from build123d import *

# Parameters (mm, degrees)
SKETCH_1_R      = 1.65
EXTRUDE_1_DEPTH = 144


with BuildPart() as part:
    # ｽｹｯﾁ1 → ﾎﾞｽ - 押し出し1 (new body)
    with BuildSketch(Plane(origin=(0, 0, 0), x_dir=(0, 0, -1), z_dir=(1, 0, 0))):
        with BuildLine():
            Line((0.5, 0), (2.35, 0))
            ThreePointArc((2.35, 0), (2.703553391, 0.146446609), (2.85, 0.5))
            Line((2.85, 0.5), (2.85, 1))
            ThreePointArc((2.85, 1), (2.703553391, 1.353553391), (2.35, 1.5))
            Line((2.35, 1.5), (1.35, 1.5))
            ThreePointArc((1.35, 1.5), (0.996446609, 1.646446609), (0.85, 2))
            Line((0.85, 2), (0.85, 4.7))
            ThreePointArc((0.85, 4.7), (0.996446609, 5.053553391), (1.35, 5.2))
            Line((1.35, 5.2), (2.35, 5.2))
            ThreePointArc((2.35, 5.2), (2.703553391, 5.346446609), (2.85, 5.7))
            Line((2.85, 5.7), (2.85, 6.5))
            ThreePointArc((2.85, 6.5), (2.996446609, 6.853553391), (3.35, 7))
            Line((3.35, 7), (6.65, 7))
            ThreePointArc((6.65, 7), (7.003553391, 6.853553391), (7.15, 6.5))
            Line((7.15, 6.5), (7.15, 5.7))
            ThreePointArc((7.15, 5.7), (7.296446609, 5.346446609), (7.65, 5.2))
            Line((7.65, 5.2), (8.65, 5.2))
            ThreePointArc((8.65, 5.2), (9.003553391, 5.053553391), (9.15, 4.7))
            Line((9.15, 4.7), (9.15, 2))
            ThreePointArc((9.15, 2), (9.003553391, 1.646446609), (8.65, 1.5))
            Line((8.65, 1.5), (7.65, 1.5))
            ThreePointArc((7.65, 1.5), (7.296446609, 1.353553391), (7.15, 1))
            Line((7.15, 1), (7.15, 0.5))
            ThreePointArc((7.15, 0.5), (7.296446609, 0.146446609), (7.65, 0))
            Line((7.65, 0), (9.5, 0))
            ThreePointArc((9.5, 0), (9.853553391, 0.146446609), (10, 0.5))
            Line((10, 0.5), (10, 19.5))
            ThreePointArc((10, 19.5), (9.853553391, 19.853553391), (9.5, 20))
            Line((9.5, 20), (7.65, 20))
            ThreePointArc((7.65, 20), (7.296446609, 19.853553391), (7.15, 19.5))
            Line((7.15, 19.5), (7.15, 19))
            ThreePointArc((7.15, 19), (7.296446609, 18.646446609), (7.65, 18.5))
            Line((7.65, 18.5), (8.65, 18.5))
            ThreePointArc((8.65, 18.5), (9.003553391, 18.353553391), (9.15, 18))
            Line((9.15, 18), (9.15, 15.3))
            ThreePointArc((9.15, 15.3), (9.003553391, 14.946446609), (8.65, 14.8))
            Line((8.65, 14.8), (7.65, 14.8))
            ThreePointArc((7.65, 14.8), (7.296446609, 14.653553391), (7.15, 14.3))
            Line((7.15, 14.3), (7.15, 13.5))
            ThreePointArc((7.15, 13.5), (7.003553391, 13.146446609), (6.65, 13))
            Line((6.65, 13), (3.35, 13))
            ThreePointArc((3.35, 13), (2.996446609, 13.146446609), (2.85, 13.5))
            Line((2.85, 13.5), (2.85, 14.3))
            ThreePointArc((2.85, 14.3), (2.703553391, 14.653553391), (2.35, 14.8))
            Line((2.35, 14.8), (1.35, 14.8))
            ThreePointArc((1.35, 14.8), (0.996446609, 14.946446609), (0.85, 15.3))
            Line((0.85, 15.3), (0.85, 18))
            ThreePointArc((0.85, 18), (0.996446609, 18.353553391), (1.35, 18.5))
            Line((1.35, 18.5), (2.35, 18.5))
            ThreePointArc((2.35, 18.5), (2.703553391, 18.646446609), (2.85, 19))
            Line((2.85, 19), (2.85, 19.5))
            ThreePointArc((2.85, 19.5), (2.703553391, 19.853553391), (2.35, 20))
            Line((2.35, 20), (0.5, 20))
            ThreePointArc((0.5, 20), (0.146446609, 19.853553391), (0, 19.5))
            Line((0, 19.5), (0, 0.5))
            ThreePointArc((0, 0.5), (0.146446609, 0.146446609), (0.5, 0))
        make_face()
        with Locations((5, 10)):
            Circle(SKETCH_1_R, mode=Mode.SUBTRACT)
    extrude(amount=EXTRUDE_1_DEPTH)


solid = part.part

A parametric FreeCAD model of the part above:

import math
import FreeCAD as App
import Part
import Sketcher
from FreeCAD import Vector

doc = App.newDocument("Part")
params = doc.addObject("Spreadsheet::Sheet", "Params")
for row, (alias, value) in enumerate([
    ("sketch1_diameter", "3.3 mm"),
    ("sketch1_radius", "0.5 mm"),
    ("sketch1_width", "19 mm"),
    ("sketch1_height", "1 mm"),
    ("sketch1_width2", "0.5 mm"),
    ("pad1_length", "144 mm"),
], start=1):
    params.set(f"A{row}", alias)
    params.set(f"B{row}", "=" + value)
    params.setAlias(f"B{row}", alias)

body = doc.addObject("PartDesign::Body", "Body")

# Sketch on YZ plane
sketch1 = body.newObject("Sketcher::SketchObject", "Sketch")
sketch1.AttachmentSupport = (doc.getObject("YZ_Plane"), [""])
sketch1.MapMode = "FlatFace"
sketch1.addGeometry(Part.LineSegment(Vector(0, -0.5, 0), Vector(0, -2.35, 0)), False)
sketch1.addGeometry(Part.ArcOfCircle(Part.Circle(Vector(0.5, -2.35, 0), Vector(0, 0, 1), 0.5), math.radians(180), math.radians(270)), False)
sketch1.addGeometry(Part.LineSegment(Vector(0.5, -2.85, 0), Vector(1, -2.85, 0)), False)
sketch1.addGeometry(Part.ArcOfCircle(Part.Circle(Vector(1, -2.35, 0), Vector(0, 0, 1), 0.5), math.radians(-90), math.radians(0)), False)
sketch1.addGeometry(Part.LineSegment(Vector(1.5, -2.35, 0), Vector(1.5, -1.35, 0)), False)
sketch1.addGeometry(Part.ArcOfCircle(Part.Circle(Vector(2, -1.35, 0), Vector(0, 0, 1), 0.5), math.radians(90), math.radians(180)), False)
sketch1.addGeometry(Part.LineSegment(Vector(2, -0.85, 0), Vector(4.7, -0.85, 0)), False)
sketch1.addGeometry(Part.ArcOfCircle(Part.Circle(Vector(4.7, -1.35, 0), Vector(0, 0, 1), 0.5), math.radians(0), math.radians(90)), False)
sketch1.addGeometry(Part.LineSegment(Vector(5.2, -1.35, 0), Vector(5.2, -2.35, 0)), False)
sketch1.addGeometry(Part.ArcOfCircle(Part.Circle(Vector(5.7, -2.35, 0), Vector(0, 0, 1), 0.5), math.radians(180), math.radians(270)), False)
sketch1.addGeometry(Part.LineSegment(Vector(5.7, -2.85, 0), Vector(6.5, -2.85, 0)), False)
sketch1.addGeometry(Part.ArcOfCircle(Part.Circle(Vector(6.5, -3.35, 0), Vector(0, 0, 1), 0.5), math.radians(0), math.radians(90)), False)
sketch1.addGeometry(Part.LineSegment(Vector(7, -3.35, 0), Vector(7, -6.65, 0)), False)
sketch1.addGeometry(Part.ArcOfCircle(Part.Circle(Vector(6.5, -6.65, 0), Vector(0, 0, 1), 0.5), math.radians(-90), math.radians(0)), False)
sketch1.addGeometry(Part.LineSegment(Vector(6.5, -7.15, 0), Vector(5.7, -7.15, 0)), False)
sketch1.addGeometry(Part.ArcOfCircle(Part.Circle(Vector(5.7, -7.65, 0), Vector(0, 0, 1), 0.5), math.radians(90), math.radians(180)), False)
sketch1.addGeometry(Part.LineSegment(Vector(5.2, -7.65, 0), Vector(5.2, -8.65, 0)), False)
sketch1.addGeometry(Part.ArcOfCircle(Part.Circle(Vector(4.7, -8.65, 0), Vector(0, 0, 1), 0.5), math.radians(-90), math.radians(0)), False)
sketch1.addGeometry(Part.LineSegment(Vector(4.7, -9.15, 0), Vector(2, -9.15, 0)), False)
sketch1.addGeometry(Part.ArcOfCircle(Part.Circle(Vector(2, -8.65, 0), Vector(0, 0, 1), 0.5), math.radians(180), math.radians(270)), False)
sketch1.addGeometry(Part.LineSegment(Vector(1.5, -8.65, 0), Vector(1.5, -7.65, 0)), False)
sketch1.addGeometry(Part.ArcOfCircle(Part.Circle(Vector(1, -7.65, 0), Vector(0, 0, 1), 0.5), math.radians(0), math.radians(90)), False)
sketch1.addGeometry(Part.LineSegment(Vector(1, -7.15, 0), Vector(0.5, -7.15, 0)), False)
sketch1.addGeometry(Part.ArcOfCircle(Part.Circle(Vector(0.5, -7.65, 0), Vector(0, 0, 1), 0.5), math.radians(90), math.radians(180)), False)
sketch1.addGeometry(Part.LineSegment(Vector(0, -7.65, 0), Vector(0, -9.5, 0)), False)
sketch1.addGeometry(Part.ArcOfCircle(Part.Circle(Vector(0.5, -9.5, 0), Vector(0, 0, 1), 0.5), math.radians(180), math.radians(270)), False)
sketch1.addGeometry(Part.LineSegment(Vector(0.5, -10, 0), Vector(19.5, -10, 0)), False)
sketch1.addGeometry(Part.ArcOfCircle(Part.Circle(Vector(19.5, -9.5, 0), Vector(0, 0, 1), 0.5), math.radians(-90), math.radians(0)), False)
sketch1.addGeometry(Part.LineSegment(Vector(20, -9.5, 0), Vector(20, -7.65, 0)), False)
sketch1.addGeometry(Part.ArcOfCircle(Part.Circle(Vector(19.5, -7.65, 0), Vector(0, 0, 1), 0.5), math.radians(0), math.radians(90)), False)
sketch1.addGeometry(Part.LineSegment(Vector(19.5, -7.15, 0), Vector(19, -7.15, 0)), False)
sketch1.addGeometry(Part.ArcOfCircle(Part.Circle(Vector(19, -7.65, 0), Vector(0, 0, 1), 0.5), math.radians(90), math.radians(180)), False)
sketch1.addGeometry(Part.LineSegment(Vector(18.5, -7.65, 0), Vector(18.5, -8.65, 0)), False)
sketch1.addGeometry(Part.ArcOfCircle(Part.Circle(Vector(18, -8.65, 0), Vector(0, 0, 1), 0.5), math.radians(-90), math.radians(0)), False)
sketch1.addGeometry(Part.LineSegment(Vector(18, -9.15, 0), Vector(15.3, -9.15, 0)), False)
sketch1.addGeometry(Part.ArcOfCircle(Part.Circle(Vector(15.3, -8.65, 0), Vector(0, 0, 1), 0.5), math.radians(180), math.radians(270)), False)
sketch1.addGeometry(Part.LineSegment(Vector(14.8, -8.65, 0), Vector(14.8, -7.65, 0)), False)
sketch1.addGeometry(Part.ArcOfCircle(Part.Circle(Vector(14.3, -7.65, 0), Vector(0, 0, 1), 0.5), math.radians(0), math.radians(90)), False)
sketch1.addGeometry(Part.LineSegment(Vector(14.3, -7.15, 0), Vector(13.5, -7.15, 0)), False)
sketch1.addGeometry(Part.ArcOfCircle(Part.Circle(Vector(13.5, -6.65, 0), Vector(0, 0, 1), 0.5), math.radians(180), math.radians(270)), False)
sketch1.addGeometry(Part.LineSegment(Vector(13, -6.65, 0), Vector(13, -3.35, 0)), False)
sketch1.addGeometry(Part.ArcOfCircle(Part.Circle(Vector(13.5, -3.35, 0), Vector(0, 0, 1), 0.5), math.radians(90), math.radians(180)), False)
sketch1.addGeometry(Part.LineSegment(Vector(13.5, -2.85, 0), Vector(14.3, -2.85, 0)), False)
sketch1.addGeometry(Part.ArcOfCircle(Part.Circle(Vector(14.3, -2.35, 0), Vector(0, 0, 1), 0.5), math.radians(-90), math.radians(0)), False)
sketch1.addGeometry(Part.LineSegment(Vector(14.8, -2.35, 0), Vector(14.8, -1.35, 0)), False)
sketch1.addGeometry(Part.ArcOfCircle(Part.Circle(Vector(15.3, -1.35, 0), Vector(0, 0, 1), 0.5), math.radians(90), math.radians(180)), False)
sketch1.addGeometry(Part.LineSegment(Vector(15.3, -0.85, 0), Vector(18, -0.85, 0)), False)
sketch1.addGeometry(Part.ArcOfCircle(Part.Circle(Vector(18, -1.35, 0), Vector(0, 0, 1), 0.5), math.radians(0), math.radians(90)), False)
sketch1.addGeometry(Part.LineSegment(Vector(18.5, -1.35, 0), Vector(18.5, -2.35, 0)), False)
sketch1.addGeometry(Part.ArcOfCircle(Part.Circle(Vector(19, -2.35, 0), Vector(0, 0, 1), 0.5), math.radians(180), math.radians(270)), False)
sketch1.addGeometry(Part.LineSegment(Vector(19, -2.85, 0), Vector(19.5, -2.85, 0)), False)
sketch1.addGeometry(Part.ArcOfCircle(Part.Circle(Vector(19.5, -2.35, 0), Vector(0, 0, 1), 0.5), math.radians(-90), math.radians(0)), False)
sketch1.addGeometry(Part.LineSegment(Vector(20, -2.35, 0), Vector(20, -0.5, 0)), False)
sketch1.addGeometry(Part.ArcOfCircle(Part.Circle(Vector(19.5, -0.5, 0), Vector(0, 0, 1), 0.5), math.radians(0), math.radians(90)), False)
sketch1.addGeometry(Part.LineSegment(Vector(19.5, 0, 0), Vector(0.5, 0, 0)), False)
sketch1.addGeometry(Part.ArcOfCircle(Part.Circle(Vector(0.5, -0.5, 0), Vector(0, 0, 1), 0.5), math.radians(90), math.radians(180)), False)
sketch1.addGeometry(Part.Circle(Vector(10, -5, 0), Vector(0, 0, 1), 1.65), False)
sketch1.addConstraint(Sketcher.Constraint("Tangent", 0, 2, 1, 1))
sketch1.addConstraint(Sketcher.Constraint("Tangent", 1, 2, 2, 1))
sketch1.addConstraint(Sketcher.Constraint("Tangent", 2, 2, 3, 1))
sketch1.addConstraint(Sketcher.Constraint("Tangent", 3, 2, 4, 1))
sketch1.addConstraint(Sketcher.Constraint("Tangent", 4, 2, 5, 2))
sketch1.addConstraint(Sketcher.Constraint("Tangent", 5, 1, 6, 1))
sketch1.addConstraint(Sketcher.Constraint("Tangent", 6, 2, 7, 2))
sketch1.addConstraint(Sketcher.Constraint("Tangent", 7, 1, 8, 1))
sketch1.addConstraint(Sketcher.Constraint("Tangent", 8, 2, 9, 1))
sketch1.addConstraint(Sketcher.Constraint("Tangent", 9, 2, 10, 1))
sketch1.addConstraint(Sketcher.Constraint("Tangent", 10, 2, 11, 2))
sketch1.addConstraint(Sketcher.Constraint("Tangent", 11, 1, 12, 1))
sketch1.addConstraint(Sketcher.Constraint("Tangent", 12, 2, 13, 2))
sketch1.addConstraint(Sketcher.Constraint("Tangent", 13, 1, 14, 1))
sketch1.addConstraint(Sketcher.Constraint("Tangent", 14, 2, 15, 1))
sketch1.addConstraint(Sketcher.Constraint("Tangent", 15, 2, 16, 1))
sketch1.addConstraint(Sketcher.Constraint("Tangent", 16, 2, 17, 2))
sketch1.addConstraint(Sketcher.Constraint("Tangent", 17, 1, 18, 1))
sketch1.addConstraint(Sketcher.Constraint("Tangent", 18, 2, 19, 2))
sketch1.addConstraint(Sketcher.Constraint("Tangent", 19, 1, 20, 1))
sketch1.addConstraint(Sketcher.Constraint("Tangent", 20, 2, 21, 1))
sketch1.addConstraint(Sketcher.Constraint("Tangent", 21, 2, 22, 1))
sketch1.addConstraint(Sketcher.Constraint("Tangent", 22, 2, 23, 1))
sketch1.addConstraint(Sketcher.Constraint("Tangent", 23, 2, 24, 1))
sketch1.addConstraint(Sketcher.Constraint("Tangent", 24, 2, 25, 1))
sketch1.addConstraint(Sketcher.Constraint("Tangent", 25, 2, 26, 1))
sketch1.addConstraint(Sketcher.Constraint("Tangent", 26, 2, 27, 1))
sketch1.addConstraint(Sketcher.Constraint("Tangent", 27, 2, 28, 1))
sketch1.addConstraint(Sketcher.Constraint("Tangent", 28, 2, 29, 1))
sketch1.addConstraint(Sketcher.Constraint("Tangent", 29, 2, 30, 1))
sketch1.addConstraint(Sketcher.Constraint("Tangent", 30, 2, 31, 1))
sketch1.addConstraint(Sketcher.Constraint("Tangent", 31, 2, 32, 1))
sketch1.addConstraint(Sketcher.Constraint("Tangent", 32, 2, 33, 2))
sketch1.addConstraint(Sketcher.Constraint("Tangent", 33, 1, 34, 1))
sketch1.addConstraint(Sketcher.Constraint("Tangent", 34, 2, 35, 2))
sketch1.addConstraint(Sketcher.Constraint("Tangent", 35, 1, 36, 1))
sketch1.addConstraint(Sketcher.Constraint("Tangent", 36, 2, 37, 1))
sketch1.addConstraint(Sketcher.Constraint("Tangent", 37, 2, 38, 1))
sketch1.addConstraint(Sketcher.Constraint("Tangent", 38, 2, 39, 2))
sketch1.addConstraint(Sketcher.Constraint("Tangent", 39, 1, 40, 1))
sketch1.addConstraint(Sketcher.Constraint("Tangent", 40, 2, 41, 2))
sketch1.addConstraint(Sketcher.Constraint("Tangent", 41, 1, 42, 1))
sketch1.addConstraint(Sketcher.Constraint("Tangent", 42, 2, 43, 1))
sketch1.addConstraint(Sketcher.Constraint("Tangent", 43, 2, 44, 1))
sketch1.addConstraint(Sketcher.Constraint("Tangent", 44, 2, 45, 2))
sketch1.addConstraint(Sketcher.Constraint("Tangent", 45, 1, 46, 1))
sketch1.addConstraint(Sketcher.Constraint("Tangent", 46, 2, 47, 2))
sketch1.addConstraint(Sketcher.Constraint("Tangent", 47, 1, 48, 1))
sketch1.addConstraint(Sketcher.Constraint("Tangent", 48, 2, 49, 1))
sketch1.addConstraint(Sketcher.Constraint("Tangent", 49, 2, 50, 1))
sketch1.addConstraint(Sketcher.Constraint("Tangent", 50, 2, 51, 1))
sketch1.addConstraint(Sketcher.Constraint("Tangent", 51, 2, 52, 1))
sketch1.addConstraint(Sketcher.Constraint("Tangent", 52, 2, 53, 1))
sketch1.addConstraint(Sketcher.Constraint("Tangent", 53, 2, 54, 1))
sketch1.addConstraint(Sketcher.Constraint("Tangent", 54, 2, 55, 1))
sketch1.addConstraint(Sketcher.Constraint("Tangent", 55, 2, 0, 1))
sketch1.addConstraint(Sketcher.Constraint("Vertical", 0))
sketch1.addConstraint(Sketcher.Constraint("Horizontal", 2))
sketch1.addConstraint(Sketcher.Constraint("Vertical", 4))
sketch1.addConstraint(Sketcher.Constraint("Horizontal", 6))
sketch1.addConstraint(Sketcher.Constraint("Vertical", 8))
sketch1.addConstraint(Sketcher.Constraint("Horizontal", 10))
sketch1.addConstraint(Sketcher.Constraint("Vertical", 12))
sketch1.addConstraint(Sketcher.Constraint("Horizontal", 14))
sketch1.addConstraint(Sketcher.Constraint("Vertical", 16))
sketch1.addConstraint(Sketcher.Constraint("Horizontal", 18))
sketch1.addConstraint(Sketcher.Constraint("Vertical", 20))
sketch1.addConstraint(Sketcher.Constraint("Horizontal", 22))
sketch1.addConstraint(Sketcher.Constraint("Vertical", 24))
sketch1.addConstraint(Sketcher.Constraint("Horizontal", 26))
sketch1.addConstraint(Sketcher.Constraint("Vertical", 28))
sketch1.addConstraint(Sketcher.Constraint("Horizontal", 30))
sketch1.addConstraint(Sketcher.Constraint("Vertical", 32))
sketch1.addConstraint(Sketcher.Constraint("Horizontal", 34))
sketch1.addConstraint(Sketcher.Constraint("Vertical", 36))
sketch1.addConstraint(Sketcher.Constraint("Horizontal", 38))
sketch1.addConstraint(Sketcher.Constraint("Vertical", 40))
sketch1.addConstraint(Sketcher.Constraint("Horizontal", 42))
sketch1.addConstraint(Sketcher.Constraint("Vertical", 44))
sketch1.addConstraint(Sketcher.Constraint("Horizontal", 46))
sketch1.addConstraint(Sketcher.Constraint("Vertical", 48))
sketch1.addConstraint(Sketcher.Constraint("Horizontal", 50))
sketch1.addConstraint(Sketcher.Constraint("Vertical", 52))
sketch1.addConstraint(Sketcher.Constraint("Horizontal", 54))
sketch1.addConstraint(Sketcher.Constraint("Equal", 1, 3))
sketch1.addConstraint(Sketcher.Constraint("Equal", 3, 5))
sketch1.addConstraint(Sketcher.Constraint("Equal", 5, 7))
sketch1.addConstraint(Sketcher.Constraint("Equal", 7, 9))
sketch1.addConstraint(Sketcher.Constraint("Equal", 9, 11))
sketch1.addConstraint(Sketcher.Constraint("Equal", 11, 13))
sketch1.addConstraint(Sketcher.Constraint("Equal", 13, 15))
sketch1.addConstraint(Sketcher.Constraint("Equal", 15, 17))
sketch1.addConstraint(Sketcher.Constraint("Equal", 17, 19))
sketch1.addConstraint(Sketcher.Constraint("Equal", 19, 21))
sketch1.addConstraint(Sketcher.Constraint("Equal", 21, 23))
sketch1.addConstraint(Sketcher.Constraint("Equal", 23, 25))
sketch1.addConstraint(Sketcher.Constraint("Equal", 25, 27))
sketch1.addConstraint(Sketcher.Constraint("Equal", 27, 29))
sketch1.addConstraint(Sketcher.Constraint("Equal", 29, 31))
sketch1.addConstraint(Sketcher.Constraint("Equal", 31, 33))
sketch1.addConstraint(Sketcher.Constraint("Equal", 33, 35))
sketch1.addConstraint(Sketcher.Constraint("Equal", 35, 37))
sketch1.addConstraint(Sketcher.Constraint("Equal", 37, 39))
sketch1.addConstraint(Sketcher.Constraint("Equal", 39, 41))
sketch1.addConstraint(Sketcher.Constraint("Equal", 41, 43))
sketch1.addConstraint(Sketcher.Constraint("Equal", 43, 45))
sketch1.addConstraint(Sketcher.Constraint("Equal", 45, 47))
sketch1.addConstraint(Sketcher.Constraint("Equal", 47, 49))
sketch1.addConstraint(Sketcher.Constraint("Equal", 49, 51))
sketch1.addConstraint(Sketcher.Constraint("Equal", 51, 53))
sketch1.addConstraint(Sketcher.Constraint("Equal", 53, 55))
sketch1.addConstraint(Sketcher.Constraint("PointOnObject", 0, 2, -2))
sketch1.addConstraint(Sketcher.Constraint("PointOnObject", 23, 2, -2))
sketch1.addConstraint(Sketcher.Constraint("PointOnObject", 53, 2, -1))
sketch1.addConstraint(Sketcher.Constraint("Horizontal", 3, 3, 9, 3))
sketch1.addConstraint(Sketcher.Constraint("Horizontal", 15, 3, 21, 3))
sketch1.addConstraint(Sketcher.Constraint("Horizontal", 23, 3, 29, 3))
sketch1.addConstraint(Sketcher.Constraint("Horizontal", 19, 3, 33, 3))
sketch1.addConstraint(Sketcher.Constraint("Horizontal", 31, 3, 37, 3))
sketch1.addConstraint(Sketcher.Constraint("Horizontal", 11, 3, 41, 3))
sketch1.addConstraint(Sketcher.Constraint("Horizontal", 7, 3, 45, 3))
sketch1.addConstraint(Sketcher.Constraint("Horizontal", 43, 3, 49, 3))
sketch1.addConstraint(Sketcher.Constraint("Vertical", 9, 3, 15, 3))
sketch1.addConstraint(Sketcher.Constraint("Vertical", 5, 3, 19, 3))
sketch1.addConstraint(Sketcher.Constraint("Vertical", 37, 3, 43, 3))
sketch1.addConstraint(Sketcher.Constraint("Vertical", 33, 3, 47, 3))
sketch1.addConstraint(Sketcher.Constraint("Vertical", 29, 3, 51, 3))
sketch1.addConstraint(Sketcher.Constraint("Equal", 22, 30))
sketch1.addConstraint(Sketcher.Constraint("Equal", 18, 34))
sketch1.addConstraint(Sketcher.Constraint("Equal", 14, 38))
sketch1.addConstraint(Sketcher.Constraint("Equal", 8, 16))
sketch1.addConstraint(Sketcher.Constraint("Equal", 0, 24))
sketch1.addConstraint(Sketcher.Constraint("Diameter", 56, 3.3))
sketch1.addConstraint(Sketcher.Constraint("Radius", 1, 0.5))
sketch1.addConstraint(Sketcher.Constraint("DistanceX", 26, 1, 26, 2, 19.0))
sketch1.addConstraint(Sketcher.Constraint("DistanceY", 4, 1, 4, 2, 1.0))
sketch1.addConstraint(Sketcher.Constraint("DistanceX", 2, 1, 2, 2, 0.5))
sketch1.addConstraint(Sketcher.Constraint("DistanceX", 6, 1, 6, 2, 2.7))
sketch1.addConstraint(Sketcher.Constraint("DistanceX", 10, 1, 10, 2, 0.8))
sketch1.addConstraint(Sketcher.Constraint("DistanceY", 12, 2, 12, 1, 3.3))
sketch1.addConstraint(Sketcher.Constraint("DistanceX", -1, 1, 56, 3, 10.0))
sketch1.addConstraint(Sketcher.Constraint("DistanceY", 56, 3, -1, 1, 5.0))
sketch1.addConstraint(Sketcher.Constraint("DistanceY", 25, 2, -1, 1, 10.0))
sketch1.setExpression("Constraints[132]", "Params.sketch1_diameter")
sketch1.setExpression("Constraints[133]", "Params.sketch1_radius")
sketch1.setExpression("Constraints[134]", "Params.sketch1_width")
sketch1.setExpression("Constraints[135]", "Params.sketch1_height")
sketch1.setExpression("Constraints[136]", "Params.sketch1_width2")
pad1 = body.newObject("PartDesign::Pad", "Pad")
pad1.Profile = sketch1
pad1.setExpression("Length", "Params.pad1_length")

doc.recompute()
